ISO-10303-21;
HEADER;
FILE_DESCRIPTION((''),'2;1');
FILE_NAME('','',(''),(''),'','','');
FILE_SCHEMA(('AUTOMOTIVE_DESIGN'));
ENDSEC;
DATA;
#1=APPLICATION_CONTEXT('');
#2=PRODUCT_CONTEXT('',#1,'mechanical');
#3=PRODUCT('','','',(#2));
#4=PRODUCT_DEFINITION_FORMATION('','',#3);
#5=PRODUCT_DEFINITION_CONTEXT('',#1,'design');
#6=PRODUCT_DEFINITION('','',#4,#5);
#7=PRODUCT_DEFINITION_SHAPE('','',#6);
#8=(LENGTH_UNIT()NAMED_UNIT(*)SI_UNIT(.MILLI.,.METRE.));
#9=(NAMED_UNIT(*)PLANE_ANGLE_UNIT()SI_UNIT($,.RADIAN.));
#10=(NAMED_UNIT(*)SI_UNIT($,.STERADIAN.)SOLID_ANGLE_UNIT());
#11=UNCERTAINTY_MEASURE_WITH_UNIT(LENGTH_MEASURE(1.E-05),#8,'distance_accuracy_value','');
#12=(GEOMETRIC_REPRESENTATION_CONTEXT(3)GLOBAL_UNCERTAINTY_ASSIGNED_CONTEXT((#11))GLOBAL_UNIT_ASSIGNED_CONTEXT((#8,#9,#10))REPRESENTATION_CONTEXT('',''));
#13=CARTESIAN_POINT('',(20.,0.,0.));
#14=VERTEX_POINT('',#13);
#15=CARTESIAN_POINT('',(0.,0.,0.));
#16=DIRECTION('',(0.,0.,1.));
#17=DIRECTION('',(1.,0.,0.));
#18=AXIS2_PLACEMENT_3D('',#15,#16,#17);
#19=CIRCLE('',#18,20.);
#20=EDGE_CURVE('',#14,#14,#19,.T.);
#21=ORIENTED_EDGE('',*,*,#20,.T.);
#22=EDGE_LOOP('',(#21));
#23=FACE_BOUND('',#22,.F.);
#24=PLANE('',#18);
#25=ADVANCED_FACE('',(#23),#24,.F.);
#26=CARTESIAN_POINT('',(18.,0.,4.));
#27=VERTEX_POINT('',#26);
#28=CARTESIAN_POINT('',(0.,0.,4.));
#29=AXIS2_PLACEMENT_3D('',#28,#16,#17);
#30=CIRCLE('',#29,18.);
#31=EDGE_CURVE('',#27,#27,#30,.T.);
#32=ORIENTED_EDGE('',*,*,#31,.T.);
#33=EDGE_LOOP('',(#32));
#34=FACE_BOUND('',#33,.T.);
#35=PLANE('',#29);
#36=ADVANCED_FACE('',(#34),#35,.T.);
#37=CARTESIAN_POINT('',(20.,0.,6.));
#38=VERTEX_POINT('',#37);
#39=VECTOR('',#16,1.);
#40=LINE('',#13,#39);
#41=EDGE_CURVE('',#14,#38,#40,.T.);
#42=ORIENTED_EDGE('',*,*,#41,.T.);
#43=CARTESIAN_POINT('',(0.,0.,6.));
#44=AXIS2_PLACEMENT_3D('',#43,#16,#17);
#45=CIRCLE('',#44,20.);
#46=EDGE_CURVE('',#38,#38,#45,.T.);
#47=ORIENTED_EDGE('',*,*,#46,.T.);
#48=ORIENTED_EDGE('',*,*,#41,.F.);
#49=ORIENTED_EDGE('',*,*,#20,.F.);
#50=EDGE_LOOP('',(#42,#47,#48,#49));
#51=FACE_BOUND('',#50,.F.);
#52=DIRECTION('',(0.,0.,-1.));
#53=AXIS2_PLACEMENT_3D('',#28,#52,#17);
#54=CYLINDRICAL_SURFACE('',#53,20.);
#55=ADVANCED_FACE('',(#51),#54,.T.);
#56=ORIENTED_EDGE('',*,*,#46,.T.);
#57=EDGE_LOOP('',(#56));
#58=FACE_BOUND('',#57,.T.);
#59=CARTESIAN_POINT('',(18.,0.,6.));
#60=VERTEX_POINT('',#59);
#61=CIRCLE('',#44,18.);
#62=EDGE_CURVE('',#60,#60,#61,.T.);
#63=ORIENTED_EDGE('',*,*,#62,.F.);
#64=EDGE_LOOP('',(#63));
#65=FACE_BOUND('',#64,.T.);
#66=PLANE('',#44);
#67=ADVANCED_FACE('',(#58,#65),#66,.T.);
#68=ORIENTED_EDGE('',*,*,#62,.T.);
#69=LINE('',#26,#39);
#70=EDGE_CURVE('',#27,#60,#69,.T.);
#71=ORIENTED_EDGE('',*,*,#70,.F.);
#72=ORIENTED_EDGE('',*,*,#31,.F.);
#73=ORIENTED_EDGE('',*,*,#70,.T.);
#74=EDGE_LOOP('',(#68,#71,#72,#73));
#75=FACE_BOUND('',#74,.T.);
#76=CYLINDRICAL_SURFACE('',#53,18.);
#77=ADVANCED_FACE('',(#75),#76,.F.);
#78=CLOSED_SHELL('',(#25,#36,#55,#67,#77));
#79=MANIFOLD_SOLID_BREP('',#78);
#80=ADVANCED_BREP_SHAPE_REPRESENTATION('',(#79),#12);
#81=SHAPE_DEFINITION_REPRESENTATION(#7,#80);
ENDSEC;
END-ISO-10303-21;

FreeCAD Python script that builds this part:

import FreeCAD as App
import Part
import Sketcher
Q = App.Units.Quantity

doc = App.newDocument("Part")
body = doc.addObject("PartDesign::Body", "Body")

sketch1 = body.newObject("Sketcher::SketchObject", "Sketch")
sketch1.AttachmentSupport = (doc.getObject("XY_Plane"), [""])
sketch1.MapMode = "FlatFace"
sketch1.addGeometry(Part.Circle(App.Vector(0, 0, 0), App.Vector(0, 0, 1), 20), False)
sketch1.addConstraint([
    Sketcher.Constraint("Coincident", 0, 3, -1, 1),
    Sketcher.Constraint("Diameter", 0, Q("40 mm")),
])
pad1 = body.newObject("PartDesign::Pad", "Pad")
pad1.Profile = sketch1
pad1.Length = 4

sketch2 = body.newObject("Sketcher::SketchObject", "Sketch001")
sketch2.AttachmentSupport = (doc.getObject("XY_Plane"), [""])
sketch2.MapMode = "FlatFace"
sketch2.AttachmentOffset = App.Placement(App.Vector(0, 0, 4), App.Rotation())
sketch2.addGeometry([
    Part.Circle(App.Vector(0, 0, 0), App.Vector(0, 0, 1), 20),
    Part.Circle(App.Vector(0, 0, 0), App.Vector(0, 0, 1), 18),
], False)
sketch2.addConstraint([
    Sketcher.Constraint("Coincident", 0, 3, -1, 1),
    Sketcher.Constraint("Coincident", 1, 3, -1, 1),
    Sketcher.Constraint("Diameter", 0, Q("40 mm")),
    Sketcher.Constraint("Diameter", 1, Q("36 mm")),
])
pad2 = body.newObject("PartDesign::Pad", "Pad001")
pad2.Profile = sketch2
pad2.Length = 2

doc.recompute()
